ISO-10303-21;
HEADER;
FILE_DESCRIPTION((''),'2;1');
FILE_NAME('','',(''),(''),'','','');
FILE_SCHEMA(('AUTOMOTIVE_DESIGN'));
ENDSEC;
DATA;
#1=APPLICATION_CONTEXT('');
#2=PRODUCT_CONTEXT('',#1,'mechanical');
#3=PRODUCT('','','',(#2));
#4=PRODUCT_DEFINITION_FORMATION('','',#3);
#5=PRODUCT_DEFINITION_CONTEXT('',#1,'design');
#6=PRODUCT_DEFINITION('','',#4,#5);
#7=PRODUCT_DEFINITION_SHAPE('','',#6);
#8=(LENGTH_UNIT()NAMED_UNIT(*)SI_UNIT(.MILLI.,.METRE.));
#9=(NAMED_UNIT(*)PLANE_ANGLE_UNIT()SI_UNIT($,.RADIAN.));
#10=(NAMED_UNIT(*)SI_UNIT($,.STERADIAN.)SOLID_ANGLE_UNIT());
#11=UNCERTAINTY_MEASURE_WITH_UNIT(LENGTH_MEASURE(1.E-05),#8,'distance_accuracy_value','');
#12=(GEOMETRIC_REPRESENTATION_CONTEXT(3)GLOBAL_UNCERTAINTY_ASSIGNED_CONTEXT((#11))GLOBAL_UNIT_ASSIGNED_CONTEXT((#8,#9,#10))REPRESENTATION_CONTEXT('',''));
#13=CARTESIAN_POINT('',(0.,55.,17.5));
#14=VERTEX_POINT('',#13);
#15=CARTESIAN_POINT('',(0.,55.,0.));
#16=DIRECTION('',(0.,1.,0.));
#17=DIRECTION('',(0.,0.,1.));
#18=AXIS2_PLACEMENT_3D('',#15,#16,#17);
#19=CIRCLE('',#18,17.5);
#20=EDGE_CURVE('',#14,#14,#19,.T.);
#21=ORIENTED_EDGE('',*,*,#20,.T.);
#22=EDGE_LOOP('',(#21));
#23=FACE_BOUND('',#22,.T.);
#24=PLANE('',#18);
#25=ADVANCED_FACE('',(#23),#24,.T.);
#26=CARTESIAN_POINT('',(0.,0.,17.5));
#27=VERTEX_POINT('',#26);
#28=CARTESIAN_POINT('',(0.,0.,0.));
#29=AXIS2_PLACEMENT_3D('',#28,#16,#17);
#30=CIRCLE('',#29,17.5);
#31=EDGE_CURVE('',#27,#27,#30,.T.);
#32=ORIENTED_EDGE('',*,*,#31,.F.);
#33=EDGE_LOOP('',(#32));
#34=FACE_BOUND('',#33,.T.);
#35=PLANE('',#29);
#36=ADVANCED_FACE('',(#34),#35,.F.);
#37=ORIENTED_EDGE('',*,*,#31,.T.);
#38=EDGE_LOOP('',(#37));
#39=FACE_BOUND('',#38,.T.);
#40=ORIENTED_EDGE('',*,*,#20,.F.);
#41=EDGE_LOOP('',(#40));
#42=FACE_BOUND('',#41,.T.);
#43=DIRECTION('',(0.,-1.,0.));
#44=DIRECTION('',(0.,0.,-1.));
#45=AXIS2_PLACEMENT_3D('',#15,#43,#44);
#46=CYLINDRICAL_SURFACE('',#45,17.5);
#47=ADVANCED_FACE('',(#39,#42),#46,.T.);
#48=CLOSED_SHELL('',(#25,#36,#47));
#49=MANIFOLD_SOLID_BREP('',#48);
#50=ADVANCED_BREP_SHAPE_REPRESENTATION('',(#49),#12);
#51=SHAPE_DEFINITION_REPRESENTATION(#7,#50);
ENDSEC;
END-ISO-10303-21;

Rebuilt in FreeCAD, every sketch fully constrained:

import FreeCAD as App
import Part
import Sketcher
from FreeCAD import Vector

doc = App.newDocument("Part")
body = doc.addObject("PartDesign::Body", "Body")

# Sketch on XZ plane
sketch1 = doc.addObject("Sketcher::SketchObject", "Sketch")
body.addObject(sketch1)
sketch1.AttachmentSupport = (doc.XZ_Plane, [""])
sketch1.MapMode = "FlatFace"
sketch1.addGeometry(Part.Circle(Vector(0, 0, 0), Vector(0, 0, 1), 17.5), False)
sketch1.addConstraint([
    Sketcher.Constraint("Coincident", 0, 3, -1, 1),
    Sketcher.Constraint("Diameter", 0, 35.0),
])
pad1 = doc.addObject("PartDesign::Pad", "Pad")
body.addObject(pad1)
pad1.Profile = sketch1
pad1.Length = 55
pad1.Reversed = True

doc.recompute()
